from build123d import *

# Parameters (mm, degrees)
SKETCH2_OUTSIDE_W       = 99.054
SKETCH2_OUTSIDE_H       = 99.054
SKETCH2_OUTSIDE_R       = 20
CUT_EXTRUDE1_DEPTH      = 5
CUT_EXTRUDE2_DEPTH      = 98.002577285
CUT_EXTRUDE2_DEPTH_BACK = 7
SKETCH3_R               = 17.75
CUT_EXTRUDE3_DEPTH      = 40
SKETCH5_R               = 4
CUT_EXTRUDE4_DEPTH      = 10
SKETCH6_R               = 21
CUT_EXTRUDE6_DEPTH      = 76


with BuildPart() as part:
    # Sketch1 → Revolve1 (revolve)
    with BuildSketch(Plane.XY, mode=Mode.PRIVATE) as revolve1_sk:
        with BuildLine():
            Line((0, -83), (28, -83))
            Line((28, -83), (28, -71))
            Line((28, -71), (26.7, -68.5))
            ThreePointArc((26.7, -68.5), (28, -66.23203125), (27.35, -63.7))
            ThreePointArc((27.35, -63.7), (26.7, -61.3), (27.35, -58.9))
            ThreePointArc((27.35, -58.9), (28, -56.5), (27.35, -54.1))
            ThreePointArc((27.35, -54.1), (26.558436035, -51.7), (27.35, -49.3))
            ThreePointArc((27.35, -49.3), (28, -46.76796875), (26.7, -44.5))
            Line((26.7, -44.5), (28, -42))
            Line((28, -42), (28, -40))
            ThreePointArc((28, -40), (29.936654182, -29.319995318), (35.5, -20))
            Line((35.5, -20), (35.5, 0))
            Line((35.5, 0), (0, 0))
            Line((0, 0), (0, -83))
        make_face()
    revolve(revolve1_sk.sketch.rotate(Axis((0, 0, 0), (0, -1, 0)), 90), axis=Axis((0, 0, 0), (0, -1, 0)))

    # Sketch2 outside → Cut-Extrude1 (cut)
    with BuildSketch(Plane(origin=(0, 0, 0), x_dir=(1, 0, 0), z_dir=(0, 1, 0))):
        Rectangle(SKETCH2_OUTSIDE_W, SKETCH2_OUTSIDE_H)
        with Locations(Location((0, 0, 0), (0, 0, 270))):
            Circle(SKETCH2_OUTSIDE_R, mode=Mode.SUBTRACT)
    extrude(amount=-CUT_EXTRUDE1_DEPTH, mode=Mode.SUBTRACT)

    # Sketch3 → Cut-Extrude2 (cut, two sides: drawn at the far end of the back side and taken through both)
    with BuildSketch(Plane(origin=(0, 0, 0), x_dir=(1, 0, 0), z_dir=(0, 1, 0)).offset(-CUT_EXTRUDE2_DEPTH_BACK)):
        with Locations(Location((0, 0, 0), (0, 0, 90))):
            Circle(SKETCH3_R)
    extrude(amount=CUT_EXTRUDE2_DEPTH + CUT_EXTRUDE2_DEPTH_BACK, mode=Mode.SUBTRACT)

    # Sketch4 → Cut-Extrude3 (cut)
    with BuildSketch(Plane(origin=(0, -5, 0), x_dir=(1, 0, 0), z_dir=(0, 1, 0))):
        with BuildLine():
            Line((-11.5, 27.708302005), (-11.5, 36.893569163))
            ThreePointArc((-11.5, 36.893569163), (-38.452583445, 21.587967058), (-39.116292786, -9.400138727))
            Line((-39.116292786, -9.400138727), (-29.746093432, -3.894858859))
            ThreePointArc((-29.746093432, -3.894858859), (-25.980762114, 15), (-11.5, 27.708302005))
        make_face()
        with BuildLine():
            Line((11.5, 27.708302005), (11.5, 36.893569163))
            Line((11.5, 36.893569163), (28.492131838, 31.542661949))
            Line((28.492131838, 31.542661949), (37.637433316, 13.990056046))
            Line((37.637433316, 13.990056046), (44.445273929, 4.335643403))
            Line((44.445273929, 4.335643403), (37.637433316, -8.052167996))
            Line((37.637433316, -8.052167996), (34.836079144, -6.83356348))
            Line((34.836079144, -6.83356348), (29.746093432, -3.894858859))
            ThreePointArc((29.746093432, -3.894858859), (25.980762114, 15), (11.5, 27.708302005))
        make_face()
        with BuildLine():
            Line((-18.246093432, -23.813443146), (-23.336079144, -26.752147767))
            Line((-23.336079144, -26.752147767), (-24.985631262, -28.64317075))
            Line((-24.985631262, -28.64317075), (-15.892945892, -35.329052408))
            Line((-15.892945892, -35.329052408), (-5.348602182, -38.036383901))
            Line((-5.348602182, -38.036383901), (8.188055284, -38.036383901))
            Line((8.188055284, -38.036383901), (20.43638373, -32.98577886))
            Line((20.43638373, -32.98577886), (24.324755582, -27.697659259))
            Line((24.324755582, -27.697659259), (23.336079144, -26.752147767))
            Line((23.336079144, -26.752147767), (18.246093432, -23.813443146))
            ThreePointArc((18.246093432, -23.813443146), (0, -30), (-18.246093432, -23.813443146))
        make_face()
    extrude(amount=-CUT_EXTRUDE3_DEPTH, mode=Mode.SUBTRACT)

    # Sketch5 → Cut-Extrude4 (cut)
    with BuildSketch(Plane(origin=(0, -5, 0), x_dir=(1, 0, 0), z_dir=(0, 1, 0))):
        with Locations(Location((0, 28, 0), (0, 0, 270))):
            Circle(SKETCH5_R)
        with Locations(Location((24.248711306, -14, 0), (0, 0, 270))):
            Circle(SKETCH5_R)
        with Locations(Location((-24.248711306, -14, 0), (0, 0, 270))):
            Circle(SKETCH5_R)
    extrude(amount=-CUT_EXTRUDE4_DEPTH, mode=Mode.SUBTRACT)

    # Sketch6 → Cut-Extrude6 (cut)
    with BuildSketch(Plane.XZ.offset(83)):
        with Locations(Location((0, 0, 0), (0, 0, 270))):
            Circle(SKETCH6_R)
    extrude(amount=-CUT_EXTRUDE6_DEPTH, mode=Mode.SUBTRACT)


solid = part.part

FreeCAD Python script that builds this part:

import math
import FreeCAD as App
import Part
import Sketcher

V = App.Vector
Q = App.Units.Quantity


def add_polygon(sketch, points):
    """Adds a closed chain of lines whose ends are joined by coincident constraints."""
    first, n = sketch.GeometryCount, len(points)
    for a, b in zip(points, points[1:] + points[:1]):
        sketch.addGeometry(Part.LineSegment(App.Vector(*a, 0), App.Vector(*b, 0)), False)
    for i in range(n):
        sketch.addConstraint(Sketcher.Constraint("Coincident", first + i, 2, first + (i + 1) % n, 1))

doc = App.newDocument("Part")
body = doc.addObject("PartDesign::Body", "Body")

sketch1 = body.newObject("Sketcher::SketchObject", "Sketch")
sketch1.AttachmentSupport = (doc.getObject("XY_Plane"), [""])
sketch1.MapMode = "FlatFace"
sketch1.addGeometry(Part.LineSegment(V(0, -83, 0), V(28, -83, 0)), False)
sketch1.addGeometry(Part.LineSegment(V(28, -83, 0), V(28, -71, 0)), False)
sketch1.addGeometry(Part.LineSegment(V(28, -71, 0), V(26.7, -68.5, 0)), False)
sketch1.addGeometry(Part.ArcOfCircle(Part.Circle(V(24.6, -65.8, 0), V(0, 0, 1), 3.5), math.radians(-52), math.radians(37)), False)
sketch1.addGeometry(Part.ArcOfCircle(Part.Circle(V(31.5, -61.3, 0), V(0, 0, 1), 4.8), math.radians(150), math.radians(210)), False)
sketch1.addGeometry(Part.ArcOfCircle(Part.Circle(V(23.2, -56.5, 0), V(0, 0, 1), 4.8), math.radians(-30), math.radians(30)), False)
sketch1.addGeometry(Part.ArcOfCircle(Part.Circle(V(30.6, -51.7, 0), V(0, 0, 1), 4), math.radians(143), math.radians(217)), False)
sketch1.addGeometry(Part.ArcOfCircle(Part.Circle(V(24.6, -47.2, 0), V(0, 0, 1), 3.5), math.radians(-37), math.radians(52)), False)
sketch1.addGeometry(Part.LineSegment(V(26.7, -44.5, 0), V(28, -42, 0)), False)
sketch1.addGeometry(Part.LineSegment(V(28, -42, 0), V(28, -40, 0)), False)
sketch1.addGeometry(Part.ArcOfCircle(Part.Circle(V(58.4, -40, 0), V(0, 0, 1), 30.4), math.radians(139), math.radians(180)), False)
sketch1.addGeometry(Part.LineSegment(V(35.5, -20, 0), V(35.5, 0, 0)), False)
sketch1.addGeometry(Part.LineSegment(V(35.5, 0, 0), V(0, 0, 0)), False)
sketch1.addGeometry(Part.LineSegment(V(0, 0, 0), V(0, -83, 0)), False)
sketch1.addConstraint(Sketcher.Constraint("Coincident", 0, 2, 1, 1))
sketch1.addConstraint(Sketcher.Constraint("Coincident", 1, 2, 2, 1))
sketch1.addConstraint(Sketcher.Constraint("Coincident", 2, 2, 3, 1))
sketch1.addConstraint(Sketcher.Constraint("Coincident", 3, 2, 4, 2))
sketch1.addConstraint(Sketcher.Constraint("Tangent", 4, 1, 5, 1))
sketch1.addConstraint(Sketcher.Constraint("Coincident", 5, 2, 6, 2))
sketch1.addConstraint(Sketcher.Constraint("Tangent", 6, 1, 7, 1))
sketch1.addConstraint(Sketcher.Constraint("Coincident", 7, 2, 8, 1))
sketch1.addConstraint(Sketcher.Constraint("Coincident", 8, 2, 9, 1))
sketch1.addConstraint(Sketcher.Constraint("Tangent", 9, 2, 10, 2))
sketch1.addConstraint(Sketcher.Constraint("Coincident", 10, 1, 11, 1))
sketch1.addConstraint(Sketcher.Constraint("Coincident", 11, 2, 12, 1))
sketch1.addConstraint(Sketcher.Constraint("Coincident", 12, 2, 13, 1))
sketch1.addConstraint(Sketcher.Constraint("Coincident", 13, 2, 0, 1))
sketch1.addConstraint(Sketcher.Constraint("Horizontal", 0))
sketch1.addConstraint(Sketcher.Constraint("Vertical", 1))
sketch1.addConstraint(Sketcher.Constraint("Vertical", 9))
sketch1.addConstraint(Sketcher.Constraint("Vertical", 11))
sketch1.addConstraint(Sketcher.Constraint("Horizontal", 12))
sketch1.addConstraint(Sketcher.Constraint("Vertical", 13))
sketch1.addConstraint(Sketcher.Constraint("Coincident", 12, 2, -1, 1))
sketch1.addConstraint(Sketcher.Constraint("Equal", 4, 5))
sketch1.addConstraint(Sketcher.Constraint("Equal", 3, 7))
sketch1.addConstraint(Sketcher.Constraint("Vertical", 3, 3, 7, 3))
sketch1.addConstraint(Sketcher.Constraint("Vertical", 3, 2, 4, 1))
sketch1.addConstraint(Sketcher.Constraint("Vertical", 4, 1, 5, 2))
sketch1.addConstraint(Sketcher.Constraint("Vertical", 5, 2, 6, 1))
sketch1.addConstraint(Sketcher.Constraint("Vertical", 2, 2, 7, 2))
sketch1.addConstraint(Sketcher.Constraint("Vertical", 1, 2, 8, 2))
sketch1.addConstraint(Sketcher.Constraint("Equal", 2, 8))
sketch1.addConstraint(Sketcher.Constraint("DistanceX", 0, 1, 0, 2, Q("28 mm")))
sketch1.addConstraint(Sketcher.Constraint("DistanceY", 1, 1, 1, 2, Q("12 mm")))
sketch1.addConstraint(Sketcher.Constraint("DistanceY", 9, 1, 9, 2, Q("2 mm")))
sketch1.addConstraint(Sketcher.Constraint("DistanceY", 11, 1, 11, 2, Q("20 mm")))
sketch1.addConstraint(Sketcher.Constraint("DistanceY", 13, 2, 13, 1, Q("83 mm")))
sketch1.addConstraint(Sketcher.Constraint("DistanceX", 12, 2, 12, 1, Q("35.5 mm")))
sketch1.addConstraint(Sketcher.Constraint("DistanceY", 10, 3, -1, 1, Q("40 mm")))
sketch1.addConstraint(Sketcher.Constraint("DistanceY", 2, 2, 5, 3, Q("12 mm")))
sketch1.addConstraint(Sketcher.Constraint("DistanceY", 5, 3, 7, 2, Q("12 mm")))
sketch1.addConstraint(Sketcher.Constraint("DistanceY", 4, 3, -1, 1, Q("61.3 mm")))
sketch1.addConstraint(Sketcher.Constraint("DistanceX", -1, 1, 2, 2, Q("26.7 mm")))
sketch1.addConstraint(Sketcher.Constraint("DistanceX", -1, 1, 3, 2, Q("27.35 mm")))
sketch1.addConstraint(Sketcher.Constraint("Radius", 4, Q("4.755769 mm")))
sketch1.addConstraint(Sketcher.Constraint("Radius", 6, Q("4.034149 mm")))
revolution = body.newObject("PartDesign::Revolution", "Revolution")
revolution.Profile = sketch1
revolution.ReferenceAxis = (sketch1, ["V_Axis"])
revolution.Angle = 360

sketch2 = body.newObject("Sketcher::SketchObject", "Sketch001")
sketch2.AttachmentSupport = (doc.getObject("XZ_Plane"), [""])
sketch2.MapMode = "FlatFace"
add_polygon(sketch2, [(-50, -50), (-50, 50), (50, 50), (50, -50)])
sketch2.addGeometry(Part.Circle(V(0, 0, 0), V(0, 0, 1), 20), False)
sketch2.addConstraint(Sketcher.Constraint("Vertical", 0))
sketch2.addConstraint(Sketcher.Constraint("Horizontal", 1))
sketch2.addConstraint(Sketcher.Constraint("Vertical", 2))
sketch2.addConstraint(Sketcher.Constraint("Horizontal", 3))
sketch2.addConstraint(Sketcher.Constraint("Coincident", 4, 3, -1, 1))
sketch2.addConstraint(Sketcher.Constraint("Symmetric", 0, 2, 2, 2, -1, 1))
sketch2.addConstraint(Sketcher.Constraint("Equal", 3, 0))
sketch2.addConstraint(Sketcher.Constraint("Diameter", 4, Q("40 mm")))
sketch2.addConstraint(Sketcher.Constraint("DistanceX", 1, 1, 1, 2, Q("99.054 mm")))
pocket1 = body.newObject("PartDesign::Pocket", "Pocket")
pocket1.Profile = sketch2
pocket1.Length = 5
pocket1.Reversed = True

sketch3 = body.newObject("Sketcher::SketchObject", "Sketch002")
sketch3.AttachmentSupport = (doc.getObject("XZ_Plane"), [""])
sketch3.MapMode = "FlatFace"
sketch3.addGeometry(Part.Circle(V(0, 0, 0), V(0, 0, 1), 18), False)
sketch3.addConstraint(Sketcher.Constraint("Coincident", 0, 3, -1, 1))
sketch3.addConstraint(Sketcher.Constraint("Diameter", 0, Q("35.5 mm")))
pocket2 = body.newObject("PartDesign::Pocket", "Pocket001")
pocket2.Profile = sketch3
pocket2.Type = "TwoLengths"
pocket2.Length = 98.002577
pocket2.Length2 = 7

sketch4 = body.newObject("Sketcher::SketchObject", "Sketch003")
sketch4.AttachmentSupport = (doc.getObject("XZ_Plane"), [""])
sketch4.MapMode = "FlatFace"
sketch4.AttachmentOffset = App.Placement(V(0, 0, 5), App.Rotation())
sketch4.addGeometry(Part.LineSegment(V(-11.5, -27.7, 0), V(-11.5, -36.9, 0)), False)
sketch4.addGeometry(Part.ArcOfCircle(Part.Circle(V(-11.5, -5.5, 0), V(0, 0, 1), 31.4), math.radians(152), math.radians(270)), False)
sketch4.addGeometry(Part.LineSegment(V(-39.1, 9.4, 0), V(-29.7, 3.9, 0)), False)
sketch4.addGeometry(Part.ArcOfCircle(Part.Circle(V(0, 0, 0), V(0, 0, 1), 30), math.radians(173), math.radians(247)), False)
sketch4.addGeometry(Part.LineSegment(V(11.5, -36.9, 0), V(11.5, -27.7, 0)), False)
sketch4.addGeometry(Part.ArcOfCircle(Part.Circle(V(0, 0, 0), V(0, 0, 1), 30), math.radians(-67), math.radians(7)), False)
sketch4.addGeometry(Part.LineSegment(V(29.7, 3.9, 0), V(34.8, 6.8, 0)), False)
sketch4.addGeometry(Part.LineSegment(V(34.8, 6.8, 0), V(37.6, 8.1, 0)), False)
sketch4.addGeometry(Part.LineSegment(V(37.6, 8.1, 0), V(44.4, -4.3, 0)), False)
sketch4.addGeometry(Part.LineSegment(V(44.4, -4.3, 0), V(37.6, -14, 0)), False)
sketch4.addGeometry(Part.LineSegment(V(37.6, -14, 0), V(28.5, -31.5, 0)), False)
sketch4.addGeometry(Part.LineSegment(V(28.5, -31.5, 0), V(11.5, -36.9, 0)), False)
sketch4.addGeometry(Part.LineSegment(V(-18.2, 23.8, 0), V(-23.3, 26.8, 0)), False)
sketch4.addGeometry(Part.LineSegment(V(-23.3, 26.8, 0), V(-25, 28.6, 0)), False)
sketch4.addGeometry(Part.LineSegment(V(-25, 28.6, 0), V(-15.9, 35.3, 0)), False)
sketch4.addGeometry(Part.LineSegment(V(-15.9, 35.3, 0), V(-5.3, 38, 0)), False)
sketch4.addGeometry(Part.LineSegment(V(-5.3, 38, 0), V(8.2, 38, 0)), False)
sketch4.addGeometry(Part.LineSegment(V(8.2, 38, 0), V(20.4, 33, 0)), False)
sketch4.addGeometry(Part.LineSegment(V(20.4, 33, 0), V(24.3, 27.7, 0)), False)
sketch4.addGeometry(Part.LineSegment(V(24.3, 27.7, 0), V(23.3, 26.8, 0)), False)
sketch4.addGeometry(Part.LineSegment(V(23.3, 26.8, 0), V(18.2, 23.8, 0)), False)
sketch4.addGeometry(Part.ArcOfCircle(Part.Circle(V(0, 0, 0), V(0, 0, 1), 30), math.radians(53), math.radians(127)), False)
sketch4.addConstraint(Sketcher.Constraint("Coincident", 0, 2, 1, 2))
sketch4.addConstraint(Sketcher.Constraint("Coincident", 1, 1, 2, 1))
sketch4.addConstraint(Sketcher.Constraint("Coincident", 2, 2, 3, 1))
sketch4.addConstraint(Sketcher.Constraint("Coincident", 3, 2, 0, 1))
sketch4.addConstraint(Sketcher.Constraint("Coincident", 4, 2, 5, 1))
sketch4.addConstraint(Sketcher.Constraint("Coincident", 5, 2, 6, 1))
sketch4.addConstraint(Sketcher.Constraint("Coincident", 6, 2, 7, 1))
sketch4.addConstraint(Sketcher.Constraint("Coincident", 7, 2, 8, 1))
sketch4.addConstraint(Sketcher.Constraint("Coincident", 8, 2, 9, 1))
sketch4.addConstraint(Sketcher.Constraint("Coincident", 9, 2, 10, 1))
sketch4.addConstraint(Sketcher.Constraint("Coincident", 10, 2, 11, 1))
sketch4.addConstraint(Sketcher.Constraint("Coincident", 11, 2, 4, 1))
sketch4.addConstraint(Sketcher.Constraint("Coincident", 12, 2, 13, 1))
sketch4.addConstraint(Sketcher.Constraint("Coincident", 13, 2, 14, 1))
sketch4.addConstraint(Sketcher.Constraint("Coincident", 14, 2, 15, 1))
sketch4.addConstraint(Sketcher.Constraint("Coincident", 15, 2, 16, 1))
sketch4.addConstraint(Sketcher.Constraint("Coincident", 16, 2, 17, 1))
sketch4.addConstraint(Sketcher.Constraint("Coincident", 17, 2, 18, 1))
sketch4.addConstraint(Sketcher.Constraint("Coincident", 18, 2, 19, 1))
sketch4.addConstraint(Sketcher.Constraint("Coincident", 19, 2, 20, 1))
sketch4.addConstraint(Sketcher.Constraint("Coincident", 20, 2, 21, 1))
sketch4.addConstraint(Sketcher.Constraint("Coincident", 21, 2, 12, 1))
sketch4.addConstraint(Sketcher.Constraint("Vertical", 0))
sketch4.addConstraint(Sketcher.Constraint("Vertical", 4))
sketch4.addConstraint(Sketcher.Constraint("Horizontal", 16))
sketch4.addConstraint(Sketcher.Constraint("Coincident", 3, 3, -1, 1))
sketch4.addConstraint(Sketcher.Constraint("Coincident", 5, 3, -1, 1))
sketch4.addConstraint(Sketcher.Constraint("Coincident", 21, 3, -1, 1))
sketch4.addConstraint(Sketcher.Constraint("Equal", 3, 5))
sketch4.addConstraint(Sketcher.Constraint("Equal", 5, 21))
sketch4.addConstraint(Sketcher.Constraint("Symmetric", 0, 2, 11, 2, -2))
sketch4.addConstraint(Sketcher.Constraint("Symmetric", 12, 2, 19, 2, -2))
sketch4.addConstraint(Sketcher.Constraint("Perpendicular", 14, 18))
sketch4.addConstraint(Sketcher.Constraint("Parallel", 6, 20))
sketch4.addConstraint(Sketcher.Constraint("Horizontal", 2, 2, 5, 2))
sketch4.addConstraint(Sketcher.Constraint("Horizontal", 20, 2, 21, 2))
sketch4.addConstraint(Sketcher.Constraint("Vertical", 1, 3, 0, 2))
sketch4.addConstraint(Sketcher.Constraint("Vertical", 7, 2, 9, 2))
sketch4.addConstraint(Sketcher.Constraint("Equal", 6, 12))
sketch4.addConstraint(Sketcher.Constraint("Radius", 3, Q("30 mm")))
sketch4.addConstraint(Sketcher.Constraint("Angle", 6, Q("30 deg")))
sketch4.addConstraint(Sketcher.Constraint("DistanceX", 3, 2, 4, 2, Q("23 mm")))
sketch4.addConstraint(Sketcher.Constraint("DistanceX", 19, 2, 6, 2, Q("11.5 mm")))
sketch4.addConstraint(Sketcher.Constraint("Radius", 1, Q("31.384038 mm")))
sketch4.addConstraint(Sketcher.Constraint("DistanceX", 14, 2, 16, 2, Q("24.081001 mm")))
sketch4.addConstraint(Sketcher.Constraint("DistanceX", 1, 1, 2, 2, Q("9.370199 mm")))
sketch4.addConstraint(Sketcher.Constraint("DistanceX", 10, 2, 9, 2, Q("9.145301 mm")))
sketch4.addConstraint(Sketcher.Constraint("DistanceY", 1, 3, 13, 2, Q("34.152701 mm")))
sketch4.addConstraint(Sketcher.Constraint("DistanceX", 16, 2, 18, 2, Q("16.1367 mm")))
sketch4.addConstraint(Sketcher.Constraint("DistanceY", 5, 2, 18, 2, Q("23.8028 mm")))
sketch4.addConstraint(Sketcher.Constraint("Distance", 6, Q("5.877409 mm")))
sketch4.addConstraint(Sketcher.Constraint("Distance", 13, Q("2.50938 mm")))
sketch4.addConstraint(Sketcher.Constraint("Distance", 15, Q("10.88636 mm")))
sketch4.addConstraint(Sketcher.Constraint("Distance", 17, Q("13.24878 mm")))
sketch4.addConstraint(Sketcher.Constraint("DistanceX", 16, 1, 16, 2, Q("13.536657 mm")))
sketch4.addConstraint(Sketcher.Constraint("DistanceY", 0, 2, 0, 1, Q("9.185267 mm")))
sketch4.addConstraint(Sketcher.Constraint("DistanceY", -1, 1, 1, 1, Q("9.400139 mm")))
sketch4.addConstraint(Sketcher.Constraint("DistanceX", -1, 1, 10, 2, Q("28.492132 mm")))
sketch4.addConstraint(Sketcher.Constraint("DistanceY", 10, 2, -1, 1, Q("31.542662 mm")))
sketch4.addConstraint(Sketcher.Constraint("DistanceY", -1, 1, 17, 2, Q("32.985779 mm")))
sketch4.addConstraint(Sketcher.Constraint("DistanceY", 5, 2, 7, 2, Q("4.157309 mm")))
sketch4.addConstraint(Sketcher.Constraint("DistanceX", 7, 2, 8, 2, Q("6.807841 mm")))
sketch4.addConstraint(Sketcher.Constraint("DistanceY", 8, 2, 7, 2, Q("12.387811 mm")))
sketch4.addConstraint(Sketcher.Constraint("DistanceY", 9, 2, 6, 2, Q("20.82362 mm")))
sketch4.addConstraint(Sketcher.Constraint("DistanceY", 13, 2, 14, 2, Q("6.685882 mm")))
pocket3 = body.newObject("PartDesign::Pocket", "Pocket002")
pocket3.Profile = sketch4
pocket3.Length = 40
pocket3.Reversed = True

sketch5 = body.newObject("Sketcher::SketchObject", "Sketch004")
sketch5.AttachmentSupport = (doc.getObject("XZ_Plane"), [""])
sketch5.MapMode = "FlatFace"
sketch5.AttachmentOffset = App.Placement(V(0, 0, 5), App.Rotation())
sketch5.addGeometry(Part.Circle(V(0, -28, 0), V(0, 0, 1), 4), False)
sketch5.addGeometry(Part.Circle(V(24.2, 14, 0), V(0, 0, 1), 4), False)
sketch5.addGeometry(Part.Circle(V(-24.2, 14, 0), V(0, 0, 1), 4), False)
sketch5.addConstraint(Sketcher.Constraint("Equal", 0, 1))
sketch5.addConstraint(Sketcher.Constraint("Equal", 1, 2))
sketch5.addConstraint(Sketcher.Constraint("Symmetric", 1, 3, 2, 3, -2))
sketch5.addConstraint(Sketcher.Constraint("PointOnObject", 0, 3, -2))
sketch5.addConstraint(Sketcher.Constraint("Diameter", 0, Q("8 mm")))
sketch5.addConstraint(Sketcher.Constraint("DistanceY", 0, 3, -1, 1, Q("28 mm")))
sketch5.addConstraint(Sketcher.Constraint("DistanceY", -1, 1, 1, 3, Q("14 mm")))
sketch5.addConstraint(Sketcher.Constraint("DistanceX", -1, 1, 1, 3, Q("24.248711 mm")))
pocket4 = body.newObject("PartDesign::Pocket", "Pocket003")
pocket4.Profile = sketch5
pocket4.Length = 10
pocket4.Reversed = True

sketch6 = body.newObject("Sketcher::SketchObject", "Sketch005")
sketch6.AttachmentSupport = (doc.getObject("XZ_Plane"), [""])
sketch6.MapMode = "FlatFace"
sketch6.AttachmentOffset = App.Placement(V(0, 0, 83), App.Rotation())
sketch6.addGeometry(Part.Circle(V(0, 0, 0), V(0, 0, 1), 21), False)
sketch6.addConstraint(Sketcher.Constraint("Coincident", 0, 3, -1, 1))
sketch6.addConstraint(Sketcher.Constraint("Diameter", 0, Q("42 mm")))
pocket5 = body.newObject("PartDesign::Pocket", "Pocket004")
pocket5.Profile = sketch6
pocket5.Length = 76

doc.recompute()
